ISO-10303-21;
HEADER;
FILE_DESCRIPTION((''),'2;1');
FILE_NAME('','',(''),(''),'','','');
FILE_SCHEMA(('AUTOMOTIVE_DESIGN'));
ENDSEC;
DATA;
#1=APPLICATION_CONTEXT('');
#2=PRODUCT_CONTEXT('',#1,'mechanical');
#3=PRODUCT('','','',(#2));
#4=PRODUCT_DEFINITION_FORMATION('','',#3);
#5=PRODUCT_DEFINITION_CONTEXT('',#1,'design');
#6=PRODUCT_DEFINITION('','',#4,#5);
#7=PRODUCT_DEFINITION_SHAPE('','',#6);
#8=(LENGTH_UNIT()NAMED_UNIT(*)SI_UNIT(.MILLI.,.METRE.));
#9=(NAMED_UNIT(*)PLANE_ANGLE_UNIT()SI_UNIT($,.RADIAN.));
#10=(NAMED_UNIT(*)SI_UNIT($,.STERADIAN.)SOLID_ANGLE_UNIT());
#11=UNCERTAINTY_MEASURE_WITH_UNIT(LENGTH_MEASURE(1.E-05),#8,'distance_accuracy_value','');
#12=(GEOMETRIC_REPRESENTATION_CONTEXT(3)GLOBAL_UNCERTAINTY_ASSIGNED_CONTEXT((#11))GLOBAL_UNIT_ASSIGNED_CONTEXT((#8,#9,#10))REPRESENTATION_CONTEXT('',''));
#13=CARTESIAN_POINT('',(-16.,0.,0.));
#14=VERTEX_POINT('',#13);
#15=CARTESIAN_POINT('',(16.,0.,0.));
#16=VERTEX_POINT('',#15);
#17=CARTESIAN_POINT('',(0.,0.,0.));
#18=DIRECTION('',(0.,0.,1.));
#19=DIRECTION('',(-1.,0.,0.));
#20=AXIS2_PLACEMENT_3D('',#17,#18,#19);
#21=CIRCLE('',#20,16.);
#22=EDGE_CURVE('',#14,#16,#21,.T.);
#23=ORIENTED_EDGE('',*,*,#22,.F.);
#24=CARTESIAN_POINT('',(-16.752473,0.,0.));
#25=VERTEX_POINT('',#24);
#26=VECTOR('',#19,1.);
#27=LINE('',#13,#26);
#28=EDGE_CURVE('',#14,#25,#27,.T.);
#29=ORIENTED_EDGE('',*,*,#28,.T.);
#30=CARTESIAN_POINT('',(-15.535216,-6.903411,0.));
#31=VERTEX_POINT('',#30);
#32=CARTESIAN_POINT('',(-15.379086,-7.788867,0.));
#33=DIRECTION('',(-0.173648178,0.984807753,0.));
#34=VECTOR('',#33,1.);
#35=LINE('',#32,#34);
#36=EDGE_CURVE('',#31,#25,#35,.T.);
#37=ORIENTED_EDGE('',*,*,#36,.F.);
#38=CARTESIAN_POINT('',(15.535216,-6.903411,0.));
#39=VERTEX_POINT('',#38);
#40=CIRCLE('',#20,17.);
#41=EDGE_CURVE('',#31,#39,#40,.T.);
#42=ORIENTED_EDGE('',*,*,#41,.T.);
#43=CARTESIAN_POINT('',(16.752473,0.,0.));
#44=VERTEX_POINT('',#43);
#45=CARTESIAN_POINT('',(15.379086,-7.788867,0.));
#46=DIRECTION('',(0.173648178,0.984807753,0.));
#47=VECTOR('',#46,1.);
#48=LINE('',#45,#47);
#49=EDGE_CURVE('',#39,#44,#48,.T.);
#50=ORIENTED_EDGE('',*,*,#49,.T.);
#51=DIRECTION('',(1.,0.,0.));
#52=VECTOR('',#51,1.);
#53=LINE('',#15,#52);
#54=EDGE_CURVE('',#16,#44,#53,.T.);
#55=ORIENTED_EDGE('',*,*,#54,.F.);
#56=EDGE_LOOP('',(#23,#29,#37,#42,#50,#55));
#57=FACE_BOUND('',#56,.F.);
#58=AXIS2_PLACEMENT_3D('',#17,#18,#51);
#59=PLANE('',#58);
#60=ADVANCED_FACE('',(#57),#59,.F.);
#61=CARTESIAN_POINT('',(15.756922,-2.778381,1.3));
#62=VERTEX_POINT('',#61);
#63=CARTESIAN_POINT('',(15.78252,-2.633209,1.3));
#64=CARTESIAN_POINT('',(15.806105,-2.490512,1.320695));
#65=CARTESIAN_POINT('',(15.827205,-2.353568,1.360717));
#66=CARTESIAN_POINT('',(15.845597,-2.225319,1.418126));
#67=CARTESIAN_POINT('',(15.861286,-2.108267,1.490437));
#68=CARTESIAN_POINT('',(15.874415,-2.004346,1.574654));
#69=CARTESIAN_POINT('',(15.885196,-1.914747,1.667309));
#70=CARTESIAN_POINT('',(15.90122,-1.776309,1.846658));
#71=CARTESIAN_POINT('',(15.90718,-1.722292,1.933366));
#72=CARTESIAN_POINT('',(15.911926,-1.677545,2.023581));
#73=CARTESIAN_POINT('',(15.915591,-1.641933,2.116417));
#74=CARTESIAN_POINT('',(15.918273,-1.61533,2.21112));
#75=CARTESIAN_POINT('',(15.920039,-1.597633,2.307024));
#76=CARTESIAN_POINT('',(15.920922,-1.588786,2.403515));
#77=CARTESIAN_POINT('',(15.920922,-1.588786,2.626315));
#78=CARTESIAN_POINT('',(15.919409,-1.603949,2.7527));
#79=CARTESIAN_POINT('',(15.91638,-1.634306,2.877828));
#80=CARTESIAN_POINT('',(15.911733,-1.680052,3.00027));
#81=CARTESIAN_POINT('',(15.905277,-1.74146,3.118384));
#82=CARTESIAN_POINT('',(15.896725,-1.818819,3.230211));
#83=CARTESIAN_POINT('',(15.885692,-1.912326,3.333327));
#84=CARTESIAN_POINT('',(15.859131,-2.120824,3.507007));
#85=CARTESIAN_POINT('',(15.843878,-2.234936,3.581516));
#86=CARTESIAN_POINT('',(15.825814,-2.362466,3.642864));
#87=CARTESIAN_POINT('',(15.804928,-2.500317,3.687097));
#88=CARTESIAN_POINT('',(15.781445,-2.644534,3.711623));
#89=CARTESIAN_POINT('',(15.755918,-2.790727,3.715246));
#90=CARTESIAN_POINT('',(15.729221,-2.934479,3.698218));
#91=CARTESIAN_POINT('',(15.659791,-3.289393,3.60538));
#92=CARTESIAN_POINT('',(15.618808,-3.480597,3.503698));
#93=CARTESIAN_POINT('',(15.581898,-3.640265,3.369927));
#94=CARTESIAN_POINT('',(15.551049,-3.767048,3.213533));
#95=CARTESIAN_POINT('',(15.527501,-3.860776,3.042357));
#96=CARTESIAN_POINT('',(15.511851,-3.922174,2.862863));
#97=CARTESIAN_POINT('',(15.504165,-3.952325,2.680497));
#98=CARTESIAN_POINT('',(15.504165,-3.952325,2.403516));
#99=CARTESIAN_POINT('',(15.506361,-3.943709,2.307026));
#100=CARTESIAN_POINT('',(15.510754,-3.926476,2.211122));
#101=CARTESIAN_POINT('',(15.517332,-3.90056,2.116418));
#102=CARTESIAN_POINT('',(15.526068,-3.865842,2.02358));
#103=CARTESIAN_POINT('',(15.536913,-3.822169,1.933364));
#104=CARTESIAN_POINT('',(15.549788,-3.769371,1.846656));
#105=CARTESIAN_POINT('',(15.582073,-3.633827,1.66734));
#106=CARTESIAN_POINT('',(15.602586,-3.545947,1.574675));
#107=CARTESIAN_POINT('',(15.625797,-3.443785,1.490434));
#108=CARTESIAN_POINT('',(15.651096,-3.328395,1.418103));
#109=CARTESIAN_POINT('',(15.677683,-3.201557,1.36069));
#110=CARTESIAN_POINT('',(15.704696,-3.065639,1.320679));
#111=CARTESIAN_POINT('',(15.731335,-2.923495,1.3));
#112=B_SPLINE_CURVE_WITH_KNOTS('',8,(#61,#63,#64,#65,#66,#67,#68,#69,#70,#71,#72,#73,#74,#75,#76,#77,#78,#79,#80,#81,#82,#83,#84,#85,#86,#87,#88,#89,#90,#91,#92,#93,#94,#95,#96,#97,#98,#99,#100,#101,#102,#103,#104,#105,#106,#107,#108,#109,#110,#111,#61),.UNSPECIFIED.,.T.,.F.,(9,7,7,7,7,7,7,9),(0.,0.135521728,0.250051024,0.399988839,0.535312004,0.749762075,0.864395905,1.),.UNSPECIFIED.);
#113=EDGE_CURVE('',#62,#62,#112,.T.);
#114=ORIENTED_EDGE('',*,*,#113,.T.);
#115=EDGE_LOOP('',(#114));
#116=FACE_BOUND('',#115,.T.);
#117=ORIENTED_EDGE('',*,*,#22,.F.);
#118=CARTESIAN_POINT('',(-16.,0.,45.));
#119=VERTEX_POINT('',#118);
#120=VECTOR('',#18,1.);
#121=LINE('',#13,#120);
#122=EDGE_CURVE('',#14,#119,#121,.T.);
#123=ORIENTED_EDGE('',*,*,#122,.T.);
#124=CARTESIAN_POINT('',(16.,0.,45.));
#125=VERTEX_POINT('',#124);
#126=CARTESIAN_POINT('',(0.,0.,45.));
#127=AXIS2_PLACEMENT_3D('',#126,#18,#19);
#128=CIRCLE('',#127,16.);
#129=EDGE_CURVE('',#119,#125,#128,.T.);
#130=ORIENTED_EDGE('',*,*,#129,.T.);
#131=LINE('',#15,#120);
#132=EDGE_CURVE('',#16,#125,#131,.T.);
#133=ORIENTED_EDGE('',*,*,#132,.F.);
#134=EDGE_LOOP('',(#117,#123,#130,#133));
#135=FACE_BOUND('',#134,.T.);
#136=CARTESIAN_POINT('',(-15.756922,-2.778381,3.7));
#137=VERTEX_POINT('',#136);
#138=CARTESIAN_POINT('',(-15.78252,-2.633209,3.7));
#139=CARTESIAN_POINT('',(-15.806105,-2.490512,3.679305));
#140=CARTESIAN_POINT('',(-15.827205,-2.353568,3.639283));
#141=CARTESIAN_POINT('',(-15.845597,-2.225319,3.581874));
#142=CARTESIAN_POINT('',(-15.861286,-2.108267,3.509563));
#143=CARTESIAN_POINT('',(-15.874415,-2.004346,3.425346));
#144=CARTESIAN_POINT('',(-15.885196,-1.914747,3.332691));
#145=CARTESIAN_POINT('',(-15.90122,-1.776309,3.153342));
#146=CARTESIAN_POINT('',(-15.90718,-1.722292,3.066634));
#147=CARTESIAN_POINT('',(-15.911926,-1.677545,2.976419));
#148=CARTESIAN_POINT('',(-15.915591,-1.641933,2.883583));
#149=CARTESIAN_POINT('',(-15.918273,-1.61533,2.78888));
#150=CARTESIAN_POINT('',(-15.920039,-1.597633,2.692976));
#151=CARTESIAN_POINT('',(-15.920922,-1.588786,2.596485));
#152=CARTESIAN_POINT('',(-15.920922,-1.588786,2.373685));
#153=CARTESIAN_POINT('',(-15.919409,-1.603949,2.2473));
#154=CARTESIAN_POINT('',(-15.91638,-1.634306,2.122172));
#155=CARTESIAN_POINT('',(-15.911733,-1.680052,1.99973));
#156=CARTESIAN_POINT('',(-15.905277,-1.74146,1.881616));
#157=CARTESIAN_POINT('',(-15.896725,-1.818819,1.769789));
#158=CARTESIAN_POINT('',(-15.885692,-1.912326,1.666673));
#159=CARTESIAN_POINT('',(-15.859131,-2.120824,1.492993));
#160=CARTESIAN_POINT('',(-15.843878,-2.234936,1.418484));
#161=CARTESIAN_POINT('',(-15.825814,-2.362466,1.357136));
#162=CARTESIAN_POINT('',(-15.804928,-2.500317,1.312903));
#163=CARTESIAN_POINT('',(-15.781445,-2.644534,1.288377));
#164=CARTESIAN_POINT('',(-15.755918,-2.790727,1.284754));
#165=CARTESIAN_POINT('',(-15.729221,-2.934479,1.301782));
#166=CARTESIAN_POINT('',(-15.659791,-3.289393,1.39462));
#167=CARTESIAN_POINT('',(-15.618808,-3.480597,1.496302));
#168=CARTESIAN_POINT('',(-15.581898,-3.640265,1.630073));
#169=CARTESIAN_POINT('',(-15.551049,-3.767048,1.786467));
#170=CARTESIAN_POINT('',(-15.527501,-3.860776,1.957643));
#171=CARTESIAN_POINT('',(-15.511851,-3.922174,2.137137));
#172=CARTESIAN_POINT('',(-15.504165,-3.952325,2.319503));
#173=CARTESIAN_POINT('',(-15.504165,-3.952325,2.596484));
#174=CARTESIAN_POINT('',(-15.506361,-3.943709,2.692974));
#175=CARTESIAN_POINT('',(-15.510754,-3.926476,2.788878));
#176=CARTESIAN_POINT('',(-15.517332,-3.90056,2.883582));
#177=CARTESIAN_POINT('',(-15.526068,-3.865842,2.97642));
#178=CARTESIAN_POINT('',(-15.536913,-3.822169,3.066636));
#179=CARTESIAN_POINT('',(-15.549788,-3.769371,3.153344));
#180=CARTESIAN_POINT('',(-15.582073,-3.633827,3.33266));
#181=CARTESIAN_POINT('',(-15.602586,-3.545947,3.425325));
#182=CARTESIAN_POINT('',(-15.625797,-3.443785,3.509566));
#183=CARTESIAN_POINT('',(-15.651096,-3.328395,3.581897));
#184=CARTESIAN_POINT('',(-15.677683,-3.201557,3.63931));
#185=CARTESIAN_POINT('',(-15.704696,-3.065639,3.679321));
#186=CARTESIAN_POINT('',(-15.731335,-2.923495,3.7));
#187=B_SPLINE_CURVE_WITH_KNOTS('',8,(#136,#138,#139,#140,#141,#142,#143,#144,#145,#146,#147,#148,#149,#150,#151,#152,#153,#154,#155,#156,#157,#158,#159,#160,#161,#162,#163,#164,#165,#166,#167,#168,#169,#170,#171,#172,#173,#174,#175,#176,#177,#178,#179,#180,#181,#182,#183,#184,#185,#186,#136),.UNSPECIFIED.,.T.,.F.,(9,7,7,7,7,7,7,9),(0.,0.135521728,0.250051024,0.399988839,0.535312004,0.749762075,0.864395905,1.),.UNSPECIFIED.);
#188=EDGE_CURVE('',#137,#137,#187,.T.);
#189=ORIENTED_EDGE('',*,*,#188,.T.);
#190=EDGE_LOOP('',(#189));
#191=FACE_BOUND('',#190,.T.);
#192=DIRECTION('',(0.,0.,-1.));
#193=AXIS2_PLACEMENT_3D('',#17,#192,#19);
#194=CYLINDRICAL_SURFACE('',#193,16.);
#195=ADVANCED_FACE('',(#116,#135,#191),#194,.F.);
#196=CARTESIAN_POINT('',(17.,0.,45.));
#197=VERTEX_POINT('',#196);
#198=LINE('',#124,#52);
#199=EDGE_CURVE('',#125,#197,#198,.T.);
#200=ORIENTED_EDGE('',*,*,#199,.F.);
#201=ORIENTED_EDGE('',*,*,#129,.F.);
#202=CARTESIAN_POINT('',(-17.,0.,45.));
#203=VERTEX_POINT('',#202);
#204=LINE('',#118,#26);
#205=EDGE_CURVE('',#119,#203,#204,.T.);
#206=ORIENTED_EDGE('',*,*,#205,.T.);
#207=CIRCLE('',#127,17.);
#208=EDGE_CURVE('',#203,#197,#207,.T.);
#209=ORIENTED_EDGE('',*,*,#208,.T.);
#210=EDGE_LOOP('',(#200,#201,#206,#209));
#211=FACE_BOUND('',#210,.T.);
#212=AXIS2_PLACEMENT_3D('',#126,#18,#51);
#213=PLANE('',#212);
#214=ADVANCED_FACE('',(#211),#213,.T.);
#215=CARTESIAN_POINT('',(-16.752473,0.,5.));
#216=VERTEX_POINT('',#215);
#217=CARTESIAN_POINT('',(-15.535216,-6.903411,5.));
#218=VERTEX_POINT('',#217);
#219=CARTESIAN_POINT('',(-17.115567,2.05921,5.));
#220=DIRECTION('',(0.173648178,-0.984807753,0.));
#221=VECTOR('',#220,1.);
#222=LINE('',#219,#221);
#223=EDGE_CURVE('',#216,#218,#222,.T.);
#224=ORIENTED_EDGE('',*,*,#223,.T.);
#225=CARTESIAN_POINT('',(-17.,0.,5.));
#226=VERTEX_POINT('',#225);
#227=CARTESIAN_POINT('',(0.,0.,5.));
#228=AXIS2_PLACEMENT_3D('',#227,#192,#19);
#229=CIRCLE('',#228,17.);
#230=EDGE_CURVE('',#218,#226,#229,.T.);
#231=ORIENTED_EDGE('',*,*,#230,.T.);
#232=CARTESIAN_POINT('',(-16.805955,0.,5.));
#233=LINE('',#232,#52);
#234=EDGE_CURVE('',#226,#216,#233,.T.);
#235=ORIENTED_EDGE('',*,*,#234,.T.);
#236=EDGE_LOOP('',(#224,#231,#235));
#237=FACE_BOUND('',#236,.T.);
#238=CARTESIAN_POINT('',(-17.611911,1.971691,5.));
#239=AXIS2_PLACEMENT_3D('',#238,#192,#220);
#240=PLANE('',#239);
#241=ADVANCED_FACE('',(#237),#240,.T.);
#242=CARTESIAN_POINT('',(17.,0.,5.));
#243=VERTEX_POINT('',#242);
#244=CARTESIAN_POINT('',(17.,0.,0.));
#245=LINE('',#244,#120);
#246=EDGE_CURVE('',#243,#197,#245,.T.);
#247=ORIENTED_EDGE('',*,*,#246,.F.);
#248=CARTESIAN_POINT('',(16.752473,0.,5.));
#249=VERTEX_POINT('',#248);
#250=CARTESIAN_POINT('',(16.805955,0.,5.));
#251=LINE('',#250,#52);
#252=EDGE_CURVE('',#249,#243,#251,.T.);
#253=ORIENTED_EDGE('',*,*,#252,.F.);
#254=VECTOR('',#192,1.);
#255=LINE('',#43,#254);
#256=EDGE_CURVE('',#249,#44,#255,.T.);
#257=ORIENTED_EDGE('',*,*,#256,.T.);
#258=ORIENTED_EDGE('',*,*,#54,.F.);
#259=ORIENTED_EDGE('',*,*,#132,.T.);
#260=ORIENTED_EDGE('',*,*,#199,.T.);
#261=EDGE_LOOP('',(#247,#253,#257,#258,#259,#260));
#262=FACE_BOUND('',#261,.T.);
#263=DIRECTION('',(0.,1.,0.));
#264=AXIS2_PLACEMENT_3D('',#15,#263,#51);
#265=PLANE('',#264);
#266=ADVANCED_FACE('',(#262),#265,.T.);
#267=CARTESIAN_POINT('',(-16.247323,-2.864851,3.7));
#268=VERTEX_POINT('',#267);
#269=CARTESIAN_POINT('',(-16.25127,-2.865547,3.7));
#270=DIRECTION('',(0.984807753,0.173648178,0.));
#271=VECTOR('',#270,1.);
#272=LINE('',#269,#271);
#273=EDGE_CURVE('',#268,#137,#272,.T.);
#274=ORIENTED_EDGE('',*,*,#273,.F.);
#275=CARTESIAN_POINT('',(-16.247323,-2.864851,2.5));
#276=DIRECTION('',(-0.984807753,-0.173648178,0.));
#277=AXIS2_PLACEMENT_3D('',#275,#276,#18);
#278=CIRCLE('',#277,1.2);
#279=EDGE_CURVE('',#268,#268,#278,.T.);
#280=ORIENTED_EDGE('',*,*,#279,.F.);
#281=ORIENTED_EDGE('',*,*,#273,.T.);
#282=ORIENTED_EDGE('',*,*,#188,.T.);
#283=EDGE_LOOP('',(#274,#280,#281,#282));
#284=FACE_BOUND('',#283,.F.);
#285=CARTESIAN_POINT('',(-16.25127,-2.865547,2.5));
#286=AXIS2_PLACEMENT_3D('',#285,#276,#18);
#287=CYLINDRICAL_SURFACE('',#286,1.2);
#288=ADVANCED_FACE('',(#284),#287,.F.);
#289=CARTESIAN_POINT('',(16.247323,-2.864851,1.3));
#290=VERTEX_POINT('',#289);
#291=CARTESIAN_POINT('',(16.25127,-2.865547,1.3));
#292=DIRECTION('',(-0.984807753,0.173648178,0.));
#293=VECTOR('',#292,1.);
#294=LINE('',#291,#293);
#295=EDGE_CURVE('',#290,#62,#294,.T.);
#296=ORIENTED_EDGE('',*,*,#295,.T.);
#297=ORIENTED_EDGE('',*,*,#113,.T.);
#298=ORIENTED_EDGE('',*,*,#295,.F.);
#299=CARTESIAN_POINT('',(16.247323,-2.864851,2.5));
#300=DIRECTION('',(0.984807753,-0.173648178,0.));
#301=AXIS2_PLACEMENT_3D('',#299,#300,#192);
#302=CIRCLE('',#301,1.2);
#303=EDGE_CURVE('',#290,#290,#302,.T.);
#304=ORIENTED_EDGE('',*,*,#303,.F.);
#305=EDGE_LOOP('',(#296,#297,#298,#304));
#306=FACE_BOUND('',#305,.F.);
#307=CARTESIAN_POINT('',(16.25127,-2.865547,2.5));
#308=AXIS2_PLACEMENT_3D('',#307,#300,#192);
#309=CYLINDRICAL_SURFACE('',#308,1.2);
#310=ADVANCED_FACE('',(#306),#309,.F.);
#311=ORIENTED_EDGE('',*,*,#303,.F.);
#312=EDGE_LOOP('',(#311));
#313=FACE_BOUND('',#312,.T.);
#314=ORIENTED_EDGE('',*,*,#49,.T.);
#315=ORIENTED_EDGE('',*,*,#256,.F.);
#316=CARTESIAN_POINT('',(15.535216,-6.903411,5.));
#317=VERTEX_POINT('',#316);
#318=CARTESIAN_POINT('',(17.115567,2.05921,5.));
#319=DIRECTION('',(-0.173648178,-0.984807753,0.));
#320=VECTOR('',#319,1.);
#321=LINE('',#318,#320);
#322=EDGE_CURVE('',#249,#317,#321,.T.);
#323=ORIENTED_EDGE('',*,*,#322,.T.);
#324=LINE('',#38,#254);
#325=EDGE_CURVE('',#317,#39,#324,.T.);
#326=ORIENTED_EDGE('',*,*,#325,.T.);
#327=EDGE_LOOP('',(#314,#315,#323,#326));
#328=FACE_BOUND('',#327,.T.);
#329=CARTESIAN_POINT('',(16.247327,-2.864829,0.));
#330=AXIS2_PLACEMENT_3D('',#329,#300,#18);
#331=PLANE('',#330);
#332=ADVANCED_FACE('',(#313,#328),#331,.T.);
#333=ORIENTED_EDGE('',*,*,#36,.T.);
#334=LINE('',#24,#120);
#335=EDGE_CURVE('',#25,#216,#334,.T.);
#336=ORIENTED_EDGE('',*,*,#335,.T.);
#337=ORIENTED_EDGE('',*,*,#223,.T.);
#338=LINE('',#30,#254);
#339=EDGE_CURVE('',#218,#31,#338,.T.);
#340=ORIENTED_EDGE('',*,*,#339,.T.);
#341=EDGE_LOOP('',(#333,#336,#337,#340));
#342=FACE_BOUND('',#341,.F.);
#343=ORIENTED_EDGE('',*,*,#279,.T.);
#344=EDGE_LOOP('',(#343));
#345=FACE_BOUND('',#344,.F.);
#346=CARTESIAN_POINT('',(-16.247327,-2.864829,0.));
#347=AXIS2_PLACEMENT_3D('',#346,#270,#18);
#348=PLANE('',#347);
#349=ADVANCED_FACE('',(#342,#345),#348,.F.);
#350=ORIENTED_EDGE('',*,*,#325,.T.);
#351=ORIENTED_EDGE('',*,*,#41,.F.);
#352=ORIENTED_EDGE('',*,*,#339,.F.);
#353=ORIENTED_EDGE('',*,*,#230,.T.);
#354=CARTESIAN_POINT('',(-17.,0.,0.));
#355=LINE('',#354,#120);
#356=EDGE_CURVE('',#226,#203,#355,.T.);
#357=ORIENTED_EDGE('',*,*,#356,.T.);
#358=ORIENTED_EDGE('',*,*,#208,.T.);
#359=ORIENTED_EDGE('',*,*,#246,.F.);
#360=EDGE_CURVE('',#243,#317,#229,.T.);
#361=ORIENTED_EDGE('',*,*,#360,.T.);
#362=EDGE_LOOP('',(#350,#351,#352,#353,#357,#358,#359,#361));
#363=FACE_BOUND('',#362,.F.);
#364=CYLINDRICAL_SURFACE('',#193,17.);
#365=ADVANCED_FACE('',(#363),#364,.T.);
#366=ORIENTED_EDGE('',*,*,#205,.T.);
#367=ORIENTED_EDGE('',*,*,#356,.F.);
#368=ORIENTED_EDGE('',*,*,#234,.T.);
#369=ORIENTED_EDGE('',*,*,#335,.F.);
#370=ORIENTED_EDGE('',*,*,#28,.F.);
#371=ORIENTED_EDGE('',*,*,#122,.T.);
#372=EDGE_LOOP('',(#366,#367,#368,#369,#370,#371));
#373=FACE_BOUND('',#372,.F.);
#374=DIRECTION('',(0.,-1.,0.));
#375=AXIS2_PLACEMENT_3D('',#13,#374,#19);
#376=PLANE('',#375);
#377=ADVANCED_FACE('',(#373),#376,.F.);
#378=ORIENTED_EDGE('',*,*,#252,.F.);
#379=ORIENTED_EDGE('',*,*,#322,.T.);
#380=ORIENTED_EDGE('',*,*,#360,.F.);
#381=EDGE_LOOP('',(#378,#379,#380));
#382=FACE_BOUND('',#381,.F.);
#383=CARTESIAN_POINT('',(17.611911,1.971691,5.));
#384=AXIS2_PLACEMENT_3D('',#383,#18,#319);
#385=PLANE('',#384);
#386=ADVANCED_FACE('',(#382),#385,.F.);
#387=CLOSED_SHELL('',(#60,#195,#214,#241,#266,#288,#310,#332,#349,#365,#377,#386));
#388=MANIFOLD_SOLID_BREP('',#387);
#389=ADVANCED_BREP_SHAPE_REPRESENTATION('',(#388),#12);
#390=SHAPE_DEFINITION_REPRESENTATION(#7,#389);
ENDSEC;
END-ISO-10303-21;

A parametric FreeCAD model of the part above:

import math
import FreeCAD as App
import Part
import Sketcher

doc = App.newDocument("Part")
body = doc.addObject("PartDesign::Body", "Body")

sketch1 = doc.addObject("Sketcher::SketchObject", "Sketch")
body.addObject(sketch1)
sketch1.AttachmentSupport = (doc.XY_Plane, [""])
sketch1.MapMode = "FlatFace"
sketch1.addGeometry(Part.LineSegment(App.Vector(-16, 0, 0), App.Vector(-17, 0, 0)), False)
sketch1.addGeometry(Part.ArcOfCircle(Part.Circle(App.Vector(0, 0, 0), App.Vector(0, 0, 1), 17), math.radians(180), math.radians(360)), False)
sketch1.addGeometry(Part.LineSegment(App.Vector(17, 0, 0), App.Vector(16, 0, 0)), False)
sketch1.addGeometry(Part.ArcOfCircle(Part.Circle(App.Vector(0, 0, 0), App.Vector(0, 0, 1), 16), math.radians(180), math.radians(360)), False)
sketch1.addConstraint(Sketcher.Constraint("Coincident", 0, 2, 1, 1))
sketch1.addConstraint(Sketcher.Constraint("Coincident", 1, 2, 2, 1))
sketch1.addConstraint(Sketcher.Constraint("Coincident", 2, 2, 3, 2))
sketch1.addConstraint(Sketcher.Constraint("Coincident", 3, 1, 0, 1))
sketch1.addConstraint(Sketcher.Constraint("Horizontal", 0))
sketch1.addConstraint(Sketcher.Constraint("Horizontal", 2))
sketch1.addConstraint(Sketcher.Constraint("Coincident", 1, 3, -1, 1))
sketch1.addConstraint(Sketcher.Constraint("Coincident", 3, 3, -1, 1))
sketch1.addConstraint(Sketcher.Constraint("PointOnObject", 0, 2, -1))
sketch1.addConstraint(Sketcher.Constraint("PointOnObject", 1, 2, -1))
sketch1.addConstraint(Sketcher.Constraint("Radius", 1, 17.0))
sketch1.addConstraint(Sketcher.Constraint("DistanceX", 0, 2, 0, 1, 1.0))
pad1 = doc.addObject("PartDesign::Pad", "Pad")
body.addObject(pad1)
pad1.Profile = sketch1
pad1.Length = 45

sketch2 = doc.addObject("Sketcher::SketchObject", "Sketch001")
body.addObject(sketch2)
sketch2.Placement = App.Placement(App.Vector(16.7417, -2.952, 0), App.Rotation(App.Vector(0, 0, 1), App.Vector(-0.173648178, -0.984807753, 0), App.Vector(0.984807753, -0.173648178, 0), "ZXY"))
sketch2.addGeometry(Part.LineSegment(App.Vector(0, 5, 0), App.Vector(0, -5, 0)), False)
sketch2.addGeometry(Part.LineSegment(App.Vector(0, -5, 0), App.Vector(5, -5, 0)), False)
sketch2.addGeometry(Part.LineSegment(App.Vector(5, -5, 0), App.Vector(5, 5, 0)), False)
sketch2.addGeometry(Part.LineSegment(App.Vector(5, 5, 0), App.Vector(0, 5, 0)), False)
sketch2.addConstraint(Sketcher.Constraint("Coincident", 0, 2, 1, 1))
sketch2.addConstraint(Sketcher.Constraint("Coincident", 1, 2, 2, 1))
sketch2.addConstraint(Sketcher.Constraint("Coincident", 2, 2, 3, 1))
sketch2.addConstraint(Sketcher.Constraint("Coincident", 3, 2, 0, 1))
sketch2.addConstraint(Sketcher.Constraint("Vertical", 0))
sketch2.addConstraint(Sketcher.Constraint("Horizontal", 1))
sketch2.addConstraint(Sketcher.Constraint("Vertical", 2))
sketch2.addConstraint(Sketcher.Constraint("Horizontal", 3))
sketch2.addConstraint(Sketcher.Constraint("Symmetric", 0, 2, 3, 2, -1, 1))
sketch2.addConstraint(Sketcher.Constraint("DistanceX", 1, 1, 1, 2, 5.0))
sketch2.addConstraint(Sketcher.Constraint("DistanceY", 0, 2, 0, 1, 10.0))
pocket1 = doc.addObject("PartDesign::Pocket", "Pocket")
body.addObject(pocket1)
pocket1.Profile = sketch2
pocket1.Length = 0.5

sketch3 = doc.addObject("Sketcher::SketchObject", "Sketch002")
body.addObject(sketch3)
sketch3.Placement = App.Placement(App.Vector(-16.7417, -2.952, 0), App.Rotation(App.Vector(0, 0, 1), App.Vector(0.173648178, -0.984807753, 0), App.Vector(0.984807753, 0.173648178, 0), "ZXY"))
sketch3.addGeometry(Part.LineSegment(App.Vector(0, 5, 0), App.Vector(0, -5, 0)), False)
sketch3.addGeometry(Part.LineSegment(App.Vector(0, -5, 0), App.Vector(5, -5, 0)), False)
sketch3.addGeometry(Part.LineSegment(App.Vector(5, -5, 0), App.Vector(5, 5, 0)), False)
sketch3.addGeometry(Part.LineSegment(App.Vector(5, 5, 0), App.Vector(0, 5, 0)), False)
sketch3.addConstraint(Sketcher.Constraint("Coincident", 0, 2, 1, 1))
sketch3.addConstraint(Sketcher.Constraint("Coincident", 1, 2, 2, 1))
sketch3.addConstraint(Sketcher.Constraint("Coincident", 2, 2, 3, 1))
sketch3.addConstraint(Sketcher.Constraint("Coincident", 3, 2, 0, 1))
sketch3.addConstraint(Sketcher.Constraint("Vertical", 0))
sketch3.addConstraint(Sketcher.Constraint("Horizontal", 1))
sketch3.addConstraint(Sketcher.Constraint("Vertical", 2))
sketch3.addConstraint(Sketcher.Constraint("Horizontal", 3))
sketch3.addConstraint(Sketcher.Constraint("Symmetric", 0, 2, 3, 2, -1, 1))
sketch3.addConstraint(Sketcher.Constraint("DistanceX", 1, 1, 1, 2, 5.0))
sketch3.addConstraint(Sketcher.Constraint("DistanceY", 0, 2, 0, 1, 10.0))
pocket2 = doc.addObject("PartDesign::Pocket", "Pocket001")
body.addObject(pocket2)
pocket2.Profile = sketch3
pocket2.Length = 0.5
pocket2.Reversed = True

sketch4 = doc.addObject("Sketcher::SketchObject", "Sketch003")
body.addObject(sketch4)
sketch4.Placement = App.Placement(App.Vector(16.2493, -2.8652, 0), App.Rotation(App.Vector(0, 0, -1), App.Vector(0.173648178, 0.984807753, 0), App.Vector(0.984807753, -0.173648178, 0), "ZXY"))
sketch4.addGeometry(Part.Circle(App.Vector(-2.5, 0, 0), App.Vector(0, 0, 1), 1.2), False)
sketch4.addConstraint(Sketcher.Constraint("PointOnObject", 0, 3, -1))
sketch4.addConstraint(Sketcher.Constraint("Diameter", 0, 2.4))
sketch4.addConstraint(Sketcher.Constraint("DistanceX", 0, 3, -1, 1, 2.5))
pocket3 = doc.addObject("PartDesign::Pocket", "Pocket002")
body.addObject(pocket3)
pocket3.Profile = sketch4
pocket3.Length = 1

sketch5 = doc.addObject("Sketcher::SketchObject", "Sketch004")
body.addObject(sketch5)
sketch5.Placement = App.Placement(App.Vector(-16.2493, -2.8652, 0), App.Rotation(App.Vector(0, 0, 1), App.Vector(-0.173648178, 0.984807753, 0), App.Vector(-0.984807753, -0.173648178, 0), "ZXY"))
sketch5.addGeometry(Part.Circle(App.Vector(2.5, 0, 0), App.Vector(0, 0, 1), 1.2), False)
sketch5.addConstraint(Sketcher.Constraint("PointOnObject", 0, 3, -1))
sketch5.addConstraint(Sketcher.Constraint("Diameter", 0, 2.4))
sketch5.addConstraint(Sketcher.Constraint("DistanceX", -1, 1, 0, 3, 2.5))
pocket4 = doc.addObject("PartDesign::Pocket", "Pocket003")
body.addObject(pocket4)
pocket4.Profile = sketch5
pocket4.Length = 1

doc.recompute()
